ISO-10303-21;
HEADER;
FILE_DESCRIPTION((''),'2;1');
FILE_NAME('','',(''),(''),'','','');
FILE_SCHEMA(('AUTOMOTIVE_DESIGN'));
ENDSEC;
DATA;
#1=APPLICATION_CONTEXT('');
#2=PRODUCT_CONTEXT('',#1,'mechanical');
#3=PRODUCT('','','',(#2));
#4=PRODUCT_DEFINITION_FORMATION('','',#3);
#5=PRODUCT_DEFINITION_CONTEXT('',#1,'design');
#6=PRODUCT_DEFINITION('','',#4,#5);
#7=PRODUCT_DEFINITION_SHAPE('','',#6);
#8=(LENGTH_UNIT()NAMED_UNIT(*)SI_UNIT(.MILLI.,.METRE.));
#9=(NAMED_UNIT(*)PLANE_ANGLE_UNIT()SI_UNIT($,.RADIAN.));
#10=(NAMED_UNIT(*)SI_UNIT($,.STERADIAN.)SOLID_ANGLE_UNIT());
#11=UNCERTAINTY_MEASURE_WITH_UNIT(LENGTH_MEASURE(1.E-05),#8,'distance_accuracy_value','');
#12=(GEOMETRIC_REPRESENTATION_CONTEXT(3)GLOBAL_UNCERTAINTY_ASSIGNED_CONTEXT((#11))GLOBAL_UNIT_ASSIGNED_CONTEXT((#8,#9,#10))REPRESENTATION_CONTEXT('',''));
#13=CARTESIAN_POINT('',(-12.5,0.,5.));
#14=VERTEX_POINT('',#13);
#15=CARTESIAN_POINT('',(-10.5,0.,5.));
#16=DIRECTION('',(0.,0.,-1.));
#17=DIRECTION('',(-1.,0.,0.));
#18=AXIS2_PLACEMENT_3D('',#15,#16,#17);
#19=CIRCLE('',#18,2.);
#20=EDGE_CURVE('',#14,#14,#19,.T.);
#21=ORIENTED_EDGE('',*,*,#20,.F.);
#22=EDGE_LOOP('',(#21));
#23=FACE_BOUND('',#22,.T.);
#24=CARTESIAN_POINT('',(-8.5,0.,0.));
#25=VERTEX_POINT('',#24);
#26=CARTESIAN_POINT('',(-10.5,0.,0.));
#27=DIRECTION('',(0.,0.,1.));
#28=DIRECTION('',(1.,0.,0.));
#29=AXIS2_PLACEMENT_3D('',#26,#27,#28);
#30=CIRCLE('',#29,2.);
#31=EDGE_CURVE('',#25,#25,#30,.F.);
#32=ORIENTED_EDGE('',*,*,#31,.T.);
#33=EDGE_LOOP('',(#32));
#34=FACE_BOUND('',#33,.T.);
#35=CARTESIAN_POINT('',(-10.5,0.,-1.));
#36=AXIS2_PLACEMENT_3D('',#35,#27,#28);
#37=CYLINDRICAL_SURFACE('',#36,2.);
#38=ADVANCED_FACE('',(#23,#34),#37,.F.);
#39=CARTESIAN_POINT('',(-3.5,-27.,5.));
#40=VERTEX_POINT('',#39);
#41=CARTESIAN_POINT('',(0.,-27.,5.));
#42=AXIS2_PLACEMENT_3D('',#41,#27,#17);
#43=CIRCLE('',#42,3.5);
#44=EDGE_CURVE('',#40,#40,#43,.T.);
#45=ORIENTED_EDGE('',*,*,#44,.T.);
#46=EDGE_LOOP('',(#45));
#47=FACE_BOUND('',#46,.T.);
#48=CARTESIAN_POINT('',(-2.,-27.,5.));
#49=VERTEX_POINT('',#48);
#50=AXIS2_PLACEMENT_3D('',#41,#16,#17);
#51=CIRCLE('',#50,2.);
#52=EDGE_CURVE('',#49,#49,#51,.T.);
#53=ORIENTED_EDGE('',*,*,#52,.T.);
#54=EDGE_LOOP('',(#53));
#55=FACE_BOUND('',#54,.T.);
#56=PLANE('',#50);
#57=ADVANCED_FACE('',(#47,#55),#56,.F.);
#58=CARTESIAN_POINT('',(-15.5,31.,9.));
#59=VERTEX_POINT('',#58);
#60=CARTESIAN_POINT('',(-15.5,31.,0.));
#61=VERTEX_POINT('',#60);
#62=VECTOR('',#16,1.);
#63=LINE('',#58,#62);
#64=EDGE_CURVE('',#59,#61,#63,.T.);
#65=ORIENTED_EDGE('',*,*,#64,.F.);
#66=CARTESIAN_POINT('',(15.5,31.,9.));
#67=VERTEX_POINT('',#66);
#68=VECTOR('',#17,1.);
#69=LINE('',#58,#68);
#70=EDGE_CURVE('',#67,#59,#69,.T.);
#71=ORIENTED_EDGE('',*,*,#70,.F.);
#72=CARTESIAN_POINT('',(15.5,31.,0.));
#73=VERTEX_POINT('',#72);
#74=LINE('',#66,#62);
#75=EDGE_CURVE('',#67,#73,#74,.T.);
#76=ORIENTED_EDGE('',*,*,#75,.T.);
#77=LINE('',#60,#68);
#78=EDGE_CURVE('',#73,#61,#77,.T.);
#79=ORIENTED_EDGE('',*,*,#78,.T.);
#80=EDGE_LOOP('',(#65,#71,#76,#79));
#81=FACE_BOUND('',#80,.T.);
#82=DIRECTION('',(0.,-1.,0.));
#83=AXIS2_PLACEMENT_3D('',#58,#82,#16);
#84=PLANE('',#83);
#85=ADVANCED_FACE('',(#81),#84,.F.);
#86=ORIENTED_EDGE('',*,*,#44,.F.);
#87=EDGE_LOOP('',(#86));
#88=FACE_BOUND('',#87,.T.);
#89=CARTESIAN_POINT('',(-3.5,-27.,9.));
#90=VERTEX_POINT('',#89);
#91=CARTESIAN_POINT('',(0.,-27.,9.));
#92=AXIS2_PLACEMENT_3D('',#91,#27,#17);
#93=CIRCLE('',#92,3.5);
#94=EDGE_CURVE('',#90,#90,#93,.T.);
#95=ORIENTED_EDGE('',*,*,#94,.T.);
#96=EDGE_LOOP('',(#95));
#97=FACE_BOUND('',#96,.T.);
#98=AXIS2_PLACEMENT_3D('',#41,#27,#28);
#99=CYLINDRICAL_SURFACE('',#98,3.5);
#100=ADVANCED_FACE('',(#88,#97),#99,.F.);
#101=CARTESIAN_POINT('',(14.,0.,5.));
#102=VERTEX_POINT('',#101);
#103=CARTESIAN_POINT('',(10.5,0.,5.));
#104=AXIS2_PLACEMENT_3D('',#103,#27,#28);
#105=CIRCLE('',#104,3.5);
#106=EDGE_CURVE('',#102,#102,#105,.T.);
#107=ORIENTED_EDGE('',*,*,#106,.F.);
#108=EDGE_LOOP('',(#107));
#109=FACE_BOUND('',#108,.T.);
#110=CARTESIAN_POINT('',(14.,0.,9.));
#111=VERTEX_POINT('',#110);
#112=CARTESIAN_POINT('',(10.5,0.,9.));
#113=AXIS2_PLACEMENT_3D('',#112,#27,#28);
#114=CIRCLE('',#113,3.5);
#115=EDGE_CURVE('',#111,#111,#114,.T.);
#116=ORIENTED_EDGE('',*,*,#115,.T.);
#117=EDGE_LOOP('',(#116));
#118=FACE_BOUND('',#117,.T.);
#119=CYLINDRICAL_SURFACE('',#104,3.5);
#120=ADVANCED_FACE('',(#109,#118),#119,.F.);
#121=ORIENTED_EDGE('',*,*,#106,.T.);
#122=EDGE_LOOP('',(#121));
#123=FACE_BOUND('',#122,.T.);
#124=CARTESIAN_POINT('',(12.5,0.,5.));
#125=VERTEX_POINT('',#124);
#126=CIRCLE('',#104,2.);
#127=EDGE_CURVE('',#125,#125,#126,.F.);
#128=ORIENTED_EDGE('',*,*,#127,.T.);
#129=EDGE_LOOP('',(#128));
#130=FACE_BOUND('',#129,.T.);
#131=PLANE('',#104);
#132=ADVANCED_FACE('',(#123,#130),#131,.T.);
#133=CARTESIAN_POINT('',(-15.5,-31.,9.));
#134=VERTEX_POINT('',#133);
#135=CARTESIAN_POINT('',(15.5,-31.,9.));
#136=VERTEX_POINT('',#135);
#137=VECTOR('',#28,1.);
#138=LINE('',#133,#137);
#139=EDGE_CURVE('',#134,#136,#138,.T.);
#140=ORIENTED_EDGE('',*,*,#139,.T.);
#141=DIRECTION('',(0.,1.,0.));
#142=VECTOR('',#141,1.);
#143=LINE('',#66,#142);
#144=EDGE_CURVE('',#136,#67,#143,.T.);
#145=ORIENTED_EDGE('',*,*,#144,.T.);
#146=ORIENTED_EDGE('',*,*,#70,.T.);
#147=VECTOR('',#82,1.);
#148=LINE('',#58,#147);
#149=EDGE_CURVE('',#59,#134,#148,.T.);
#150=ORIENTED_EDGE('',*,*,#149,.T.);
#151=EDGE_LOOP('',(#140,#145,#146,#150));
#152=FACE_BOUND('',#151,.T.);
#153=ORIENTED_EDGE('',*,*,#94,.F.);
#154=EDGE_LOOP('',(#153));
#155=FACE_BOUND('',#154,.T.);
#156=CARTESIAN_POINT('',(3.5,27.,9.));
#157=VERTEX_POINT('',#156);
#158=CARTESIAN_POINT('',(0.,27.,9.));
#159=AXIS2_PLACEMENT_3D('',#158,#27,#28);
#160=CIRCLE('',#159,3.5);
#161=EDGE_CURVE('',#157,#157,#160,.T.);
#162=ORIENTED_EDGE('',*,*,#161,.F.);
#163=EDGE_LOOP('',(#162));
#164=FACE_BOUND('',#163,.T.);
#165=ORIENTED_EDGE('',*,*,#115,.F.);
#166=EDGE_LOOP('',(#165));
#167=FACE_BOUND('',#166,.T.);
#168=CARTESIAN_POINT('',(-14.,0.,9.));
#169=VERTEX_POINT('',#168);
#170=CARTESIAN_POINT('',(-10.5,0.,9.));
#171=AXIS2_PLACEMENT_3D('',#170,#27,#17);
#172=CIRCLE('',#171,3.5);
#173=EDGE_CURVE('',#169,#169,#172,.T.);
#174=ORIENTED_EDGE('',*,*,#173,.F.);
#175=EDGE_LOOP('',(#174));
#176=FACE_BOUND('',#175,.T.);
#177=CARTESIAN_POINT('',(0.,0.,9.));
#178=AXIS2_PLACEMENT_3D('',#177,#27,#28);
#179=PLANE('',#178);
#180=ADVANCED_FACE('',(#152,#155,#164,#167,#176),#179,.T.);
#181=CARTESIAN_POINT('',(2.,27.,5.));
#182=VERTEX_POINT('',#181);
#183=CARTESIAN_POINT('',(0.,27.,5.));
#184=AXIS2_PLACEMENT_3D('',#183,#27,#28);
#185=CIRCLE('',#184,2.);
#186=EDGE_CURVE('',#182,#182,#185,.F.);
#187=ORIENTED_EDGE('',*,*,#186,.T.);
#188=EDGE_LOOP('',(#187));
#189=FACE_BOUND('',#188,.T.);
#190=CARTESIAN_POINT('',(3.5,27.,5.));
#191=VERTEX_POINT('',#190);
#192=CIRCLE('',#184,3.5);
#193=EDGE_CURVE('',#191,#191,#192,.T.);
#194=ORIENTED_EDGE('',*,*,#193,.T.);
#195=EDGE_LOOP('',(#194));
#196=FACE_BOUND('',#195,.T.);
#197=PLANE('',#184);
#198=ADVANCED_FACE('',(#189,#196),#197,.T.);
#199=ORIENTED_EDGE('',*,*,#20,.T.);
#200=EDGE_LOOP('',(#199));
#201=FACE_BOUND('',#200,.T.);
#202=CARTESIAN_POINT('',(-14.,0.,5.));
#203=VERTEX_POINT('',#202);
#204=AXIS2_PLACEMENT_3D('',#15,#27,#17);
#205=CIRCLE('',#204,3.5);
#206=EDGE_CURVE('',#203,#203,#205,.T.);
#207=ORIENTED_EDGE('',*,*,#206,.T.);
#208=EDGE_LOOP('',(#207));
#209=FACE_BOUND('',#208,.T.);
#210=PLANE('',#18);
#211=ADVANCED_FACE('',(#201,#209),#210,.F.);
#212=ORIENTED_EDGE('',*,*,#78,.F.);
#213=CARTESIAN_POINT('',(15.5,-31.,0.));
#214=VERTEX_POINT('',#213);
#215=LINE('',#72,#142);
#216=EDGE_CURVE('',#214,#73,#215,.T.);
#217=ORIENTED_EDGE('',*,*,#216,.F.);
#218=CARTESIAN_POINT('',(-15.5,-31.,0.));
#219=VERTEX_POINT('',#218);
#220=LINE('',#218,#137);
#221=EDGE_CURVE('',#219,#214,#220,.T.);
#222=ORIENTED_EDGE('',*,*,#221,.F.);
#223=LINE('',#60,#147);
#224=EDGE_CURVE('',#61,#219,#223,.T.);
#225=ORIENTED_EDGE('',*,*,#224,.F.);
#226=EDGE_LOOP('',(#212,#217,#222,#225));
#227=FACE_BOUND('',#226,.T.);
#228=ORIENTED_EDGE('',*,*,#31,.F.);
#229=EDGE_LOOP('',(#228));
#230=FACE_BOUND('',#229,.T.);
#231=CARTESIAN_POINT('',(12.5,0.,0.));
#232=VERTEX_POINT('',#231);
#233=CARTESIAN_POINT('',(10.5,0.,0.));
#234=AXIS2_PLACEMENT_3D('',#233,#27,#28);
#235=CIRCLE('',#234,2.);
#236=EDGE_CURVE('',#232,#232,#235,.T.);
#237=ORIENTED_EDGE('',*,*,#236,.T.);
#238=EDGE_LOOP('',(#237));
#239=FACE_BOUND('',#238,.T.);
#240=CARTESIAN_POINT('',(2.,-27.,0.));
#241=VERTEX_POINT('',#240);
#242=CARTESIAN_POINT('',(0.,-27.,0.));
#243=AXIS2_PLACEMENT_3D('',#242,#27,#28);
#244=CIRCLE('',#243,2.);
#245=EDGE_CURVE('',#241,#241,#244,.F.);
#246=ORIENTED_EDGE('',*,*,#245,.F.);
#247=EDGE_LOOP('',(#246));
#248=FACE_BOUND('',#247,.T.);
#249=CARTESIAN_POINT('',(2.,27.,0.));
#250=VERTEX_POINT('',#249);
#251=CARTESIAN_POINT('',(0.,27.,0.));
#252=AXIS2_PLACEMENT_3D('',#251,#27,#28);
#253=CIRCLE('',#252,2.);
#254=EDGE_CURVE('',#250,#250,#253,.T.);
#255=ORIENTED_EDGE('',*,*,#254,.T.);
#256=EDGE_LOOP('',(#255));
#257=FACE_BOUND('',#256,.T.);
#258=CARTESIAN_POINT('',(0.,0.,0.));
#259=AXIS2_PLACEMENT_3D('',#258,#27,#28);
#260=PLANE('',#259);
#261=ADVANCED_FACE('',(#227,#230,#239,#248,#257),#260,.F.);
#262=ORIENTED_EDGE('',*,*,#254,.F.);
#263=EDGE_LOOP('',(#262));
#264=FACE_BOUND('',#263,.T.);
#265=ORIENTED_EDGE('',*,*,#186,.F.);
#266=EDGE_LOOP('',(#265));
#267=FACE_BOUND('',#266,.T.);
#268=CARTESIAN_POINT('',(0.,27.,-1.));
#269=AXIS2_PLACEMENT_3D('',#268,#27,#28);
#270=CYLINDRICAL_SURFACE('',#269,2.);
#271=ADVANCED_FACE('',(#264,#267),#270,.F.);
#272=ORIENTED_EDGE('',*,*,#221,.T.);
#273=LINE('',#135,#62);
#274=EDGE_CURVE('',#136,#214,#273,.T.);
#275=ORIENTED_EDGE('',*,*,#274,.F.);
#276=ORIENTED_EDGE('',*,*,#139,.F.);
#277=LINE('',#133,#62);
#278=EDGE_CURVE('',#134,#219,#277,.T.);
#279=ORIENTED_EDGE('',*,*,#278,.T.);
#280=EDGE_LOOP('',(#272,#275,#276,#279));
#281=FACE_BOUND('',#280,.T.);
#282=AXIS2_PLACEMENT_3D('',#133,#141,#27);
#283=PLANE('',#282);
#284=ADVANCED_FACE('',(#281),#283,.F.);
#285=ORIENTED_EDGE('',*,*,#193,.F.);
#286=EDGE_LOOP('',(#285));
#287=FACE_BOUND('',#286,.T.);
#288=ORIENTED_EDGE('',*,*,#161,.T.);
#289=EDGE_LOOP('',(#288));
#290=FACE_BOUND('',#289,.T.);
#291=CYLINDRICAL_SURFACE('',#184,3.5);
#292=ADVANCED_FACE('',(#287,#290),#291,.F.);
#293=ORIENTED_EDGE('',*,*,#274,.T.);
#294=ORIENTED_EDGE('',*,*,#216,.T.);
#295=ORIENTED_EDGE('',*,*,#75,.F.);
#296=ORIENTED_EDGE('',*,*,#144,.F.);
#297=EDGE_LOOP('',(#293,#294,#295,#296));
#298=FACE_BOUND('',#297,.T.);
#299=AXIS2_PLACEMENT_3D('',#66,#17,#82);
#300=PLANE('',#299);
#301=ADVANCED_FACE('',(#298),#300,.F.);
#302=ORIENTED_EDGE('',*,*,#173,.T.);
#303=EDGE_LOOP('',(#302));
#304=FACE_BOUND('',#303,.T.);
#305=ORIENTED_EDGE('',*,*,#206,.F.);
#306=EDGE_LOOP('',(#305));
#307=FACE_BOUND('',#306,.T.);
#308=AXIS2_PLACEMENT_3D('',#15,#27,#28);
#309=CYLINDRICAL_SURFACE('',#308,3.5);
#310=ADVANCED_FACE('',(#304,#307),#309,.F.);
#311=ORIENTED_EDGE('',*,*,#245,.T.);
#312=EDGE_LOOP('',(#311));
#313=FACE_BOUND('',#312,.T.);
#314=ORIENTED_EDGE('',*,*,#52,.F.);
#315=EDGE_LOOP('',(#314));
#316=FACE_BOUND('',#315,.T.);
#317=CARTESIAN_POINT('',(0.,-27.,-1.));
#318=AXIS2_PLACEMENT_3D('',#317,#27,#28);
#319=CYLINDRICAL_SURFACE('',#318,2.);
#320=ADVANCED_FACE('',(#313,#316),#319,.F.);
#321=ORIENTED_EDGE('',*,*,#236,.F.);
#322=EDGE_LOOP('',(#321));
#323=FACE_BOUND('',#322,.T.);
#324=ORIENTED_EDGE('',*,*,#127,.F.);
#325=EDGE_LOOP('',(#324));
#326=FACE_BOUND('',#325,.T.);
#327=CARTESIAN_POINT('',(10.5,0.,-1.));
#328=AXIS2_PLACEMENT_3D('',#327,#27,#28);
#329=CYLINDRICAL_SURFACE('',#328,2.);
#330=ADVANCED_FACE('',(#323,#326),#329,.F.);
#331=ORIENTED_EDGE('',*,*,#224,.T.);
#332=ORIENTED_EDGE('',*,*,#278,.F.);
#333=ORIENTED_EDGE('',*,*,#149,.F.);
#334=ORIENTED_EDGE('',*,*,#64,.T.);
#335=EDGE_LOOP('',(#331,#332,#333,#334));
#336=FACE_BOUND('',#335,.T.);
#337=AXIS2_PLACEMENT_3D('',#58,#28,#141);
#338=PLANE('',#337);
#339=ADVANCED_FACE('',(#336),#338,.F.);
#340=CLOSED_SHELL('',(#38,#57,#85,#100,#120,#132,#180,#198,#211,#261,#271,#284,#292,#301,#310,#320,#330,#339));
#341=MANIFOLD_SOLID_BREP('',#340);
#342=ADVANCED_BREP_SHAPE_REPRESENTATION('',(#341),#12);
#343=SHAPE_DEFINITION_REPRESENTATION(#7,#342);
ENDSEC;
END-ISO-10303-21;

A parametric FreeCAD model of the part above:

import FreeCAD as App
import Part
import Sketcher

V = App.Vector
Q = App.Units.Quantity

doc = App.newDocument("Part")
body = doc.addObject("PartDesign::Body", "Body")

sketch1 = body.newObject("Sketcher::SketchObject", "Sketch")
sketch1.AttachmentSupport = (doc.getObject("XY_Plane"), [""])
sketch1.MapMode = "FlatFace"
sketch1.addGeometry([
    Part.LineSegment(V(-15.5, 31, 0), V(-15.5, -31, 0)),
    Part.LineSegment(V(-15.5, -31, 0), V(15.5, -31, 0)),
    Part.LineSegment(V(15.5, -31, 0), V(15.5, 31, 0)),
    Part.LineSegment(V(15.5, 31, 0), V(-15.5, 31, 0)),
], False)
sketch1.addConstraint([
    Sketcher.Constraint("Coincident", 0, 2, 1, 1),
    Sketcher.Constraint("Coincident", 1, 2, 2, 1),
    Sketcher.Constraint("Coincident", 2, 2, 3, 1),
    Sketcher.Constraint("Coincident", 3, 2, 0, 1),
    Sketcher.Constraint("Vertical", 0),
    Sketcher.Constraint("Horizontal", 1),
    Sketcher.Constraint("Vertical", 2),
    Sketcher.Constraint("Horizontal", 3),
    Sketcher.Constraint("Symmetric", 0, 2, 2, 2, -1, 1),
    Sketcher.Constraint("DistanceX", 1, 1, 1, 2, Q("31 mm")),
    Sketcher.Constraint("DistanceY", 0, 2, 0, 1, Q("62 mm")),
])
pad1 = body.newObject("PartDesign::Pad", "Pad")
pad1.Profile = sketch1
pad1.Length = 9

sketch2 = body.newObject("Sketcher::SketchObject", "Sketch001")
sketch2.AttachmentSupport = (doc.getObject("XY_Plane"), [""])
sketch2.MapMode = "FlatFace"
sketch2.AttachmentOffset = App.Placement(V(0, 0, 9), App.Rotation())
sketch2.addGeometry([
    Part.Circle(V(0, 27, 0), V(0, 0, 1), 2),
    Part.Circle(V(0, -27, 0), V(0, 0, 1), 2),
    Part.Circle(V(10.5, 0, 0), V(0, 0, 1), 2),
    Part.Circle(V(-10.5, 0, 0), V(0, 0, 1), 2),
], False)
sketch2.addConstraint([
    Sketcher.Constraint("Equal", 0, 1),
    Sketcher.Constraint("Equal", 1, 2),
    Sketcher.Constraint("Equal", 2, 3),
    Sketcher.Constraint("Symmetric", 0, 3, 1, 3, -1, 1),
    Sketcher.Constraint("Symmetric", 2, 3, 3, 3, -1, 1),
    Sketcher.Constraint("PointOnObject", 0, 3, -2),
    Sketcher.Constraint("PointOnObject", 2, 3, -1),
    Sketcher.Constraint("Diameter", 0, Q("4 mm")),
    Sketcher.Constraint("DistanceY", -1, 1, 0, 3, Q("27 mm")),
    Sketcher.Constraint("DistanceX", 3, 3, 2, 3, Q("21 mm")),
])
pocket1 = body.newObject("PartDesign::Pocket", "Pocket")
pocket1.Profile = sketch2
pocket1.Length = 10

sketch3 = body.newObject("Sketcher::SketchObject", "Sketch002")
sketch3.AttachmentSupport = (doc.getObject("XY_Plane"), [""])
sketch3.MapMode = "FlatFace"
sketch3.AttachmentOffset = App.Placement(V(0, 0, 9), App.Rotation())
sketch3.addGeometry([
    Part.Circle(V(0, 27, 0), V(0, 0, 1), 3.5),
    Part.Circle(V(10.5, 0, 0), V(0, 0, 1), 3.5),
    Part.Circle(V(-10.5, 0, 0), V(0, 0, 1), 3.5),
    Part.Circle(V(0, -27, 0), V(0, 0, 1), 3.5),
], False)
sketch3.addConstraint([
    Sketcher.Constraint("Equal", 0, 1),
    Sketcher.Constraint("Equal", 1, 2),
    Sketcher.Constraint("Equal", 2, 3),
    Sketcher.Constraint("Symmetric", 1, 3, 2, 3, -1, 1),
    Sketcher.Constraint("Symmetric", 0, 3, 3, 3, -1, 1),
    Sketcher.Constraint("PointOnObject", 0, 3, -2),
    Sketcher.Constraint("PointOnObject", 1, 3, -1),
    Sketcher.Constraint("Diameter", 0, Q("7 mm")),
    Sketcher.Constraint("DistanceY", -1, 1, 0, 3, Q("27 mm")),
    Sketcher.Constraint("DistanceX", 2, 3, 1, 3, Q("21 mm")),
])
pocket2 = body.newObject("PartDesign::Pocket", "Pocket001")
pocket2.Profile = sketch3
pocket2.Length = 4

doc.recompute()
